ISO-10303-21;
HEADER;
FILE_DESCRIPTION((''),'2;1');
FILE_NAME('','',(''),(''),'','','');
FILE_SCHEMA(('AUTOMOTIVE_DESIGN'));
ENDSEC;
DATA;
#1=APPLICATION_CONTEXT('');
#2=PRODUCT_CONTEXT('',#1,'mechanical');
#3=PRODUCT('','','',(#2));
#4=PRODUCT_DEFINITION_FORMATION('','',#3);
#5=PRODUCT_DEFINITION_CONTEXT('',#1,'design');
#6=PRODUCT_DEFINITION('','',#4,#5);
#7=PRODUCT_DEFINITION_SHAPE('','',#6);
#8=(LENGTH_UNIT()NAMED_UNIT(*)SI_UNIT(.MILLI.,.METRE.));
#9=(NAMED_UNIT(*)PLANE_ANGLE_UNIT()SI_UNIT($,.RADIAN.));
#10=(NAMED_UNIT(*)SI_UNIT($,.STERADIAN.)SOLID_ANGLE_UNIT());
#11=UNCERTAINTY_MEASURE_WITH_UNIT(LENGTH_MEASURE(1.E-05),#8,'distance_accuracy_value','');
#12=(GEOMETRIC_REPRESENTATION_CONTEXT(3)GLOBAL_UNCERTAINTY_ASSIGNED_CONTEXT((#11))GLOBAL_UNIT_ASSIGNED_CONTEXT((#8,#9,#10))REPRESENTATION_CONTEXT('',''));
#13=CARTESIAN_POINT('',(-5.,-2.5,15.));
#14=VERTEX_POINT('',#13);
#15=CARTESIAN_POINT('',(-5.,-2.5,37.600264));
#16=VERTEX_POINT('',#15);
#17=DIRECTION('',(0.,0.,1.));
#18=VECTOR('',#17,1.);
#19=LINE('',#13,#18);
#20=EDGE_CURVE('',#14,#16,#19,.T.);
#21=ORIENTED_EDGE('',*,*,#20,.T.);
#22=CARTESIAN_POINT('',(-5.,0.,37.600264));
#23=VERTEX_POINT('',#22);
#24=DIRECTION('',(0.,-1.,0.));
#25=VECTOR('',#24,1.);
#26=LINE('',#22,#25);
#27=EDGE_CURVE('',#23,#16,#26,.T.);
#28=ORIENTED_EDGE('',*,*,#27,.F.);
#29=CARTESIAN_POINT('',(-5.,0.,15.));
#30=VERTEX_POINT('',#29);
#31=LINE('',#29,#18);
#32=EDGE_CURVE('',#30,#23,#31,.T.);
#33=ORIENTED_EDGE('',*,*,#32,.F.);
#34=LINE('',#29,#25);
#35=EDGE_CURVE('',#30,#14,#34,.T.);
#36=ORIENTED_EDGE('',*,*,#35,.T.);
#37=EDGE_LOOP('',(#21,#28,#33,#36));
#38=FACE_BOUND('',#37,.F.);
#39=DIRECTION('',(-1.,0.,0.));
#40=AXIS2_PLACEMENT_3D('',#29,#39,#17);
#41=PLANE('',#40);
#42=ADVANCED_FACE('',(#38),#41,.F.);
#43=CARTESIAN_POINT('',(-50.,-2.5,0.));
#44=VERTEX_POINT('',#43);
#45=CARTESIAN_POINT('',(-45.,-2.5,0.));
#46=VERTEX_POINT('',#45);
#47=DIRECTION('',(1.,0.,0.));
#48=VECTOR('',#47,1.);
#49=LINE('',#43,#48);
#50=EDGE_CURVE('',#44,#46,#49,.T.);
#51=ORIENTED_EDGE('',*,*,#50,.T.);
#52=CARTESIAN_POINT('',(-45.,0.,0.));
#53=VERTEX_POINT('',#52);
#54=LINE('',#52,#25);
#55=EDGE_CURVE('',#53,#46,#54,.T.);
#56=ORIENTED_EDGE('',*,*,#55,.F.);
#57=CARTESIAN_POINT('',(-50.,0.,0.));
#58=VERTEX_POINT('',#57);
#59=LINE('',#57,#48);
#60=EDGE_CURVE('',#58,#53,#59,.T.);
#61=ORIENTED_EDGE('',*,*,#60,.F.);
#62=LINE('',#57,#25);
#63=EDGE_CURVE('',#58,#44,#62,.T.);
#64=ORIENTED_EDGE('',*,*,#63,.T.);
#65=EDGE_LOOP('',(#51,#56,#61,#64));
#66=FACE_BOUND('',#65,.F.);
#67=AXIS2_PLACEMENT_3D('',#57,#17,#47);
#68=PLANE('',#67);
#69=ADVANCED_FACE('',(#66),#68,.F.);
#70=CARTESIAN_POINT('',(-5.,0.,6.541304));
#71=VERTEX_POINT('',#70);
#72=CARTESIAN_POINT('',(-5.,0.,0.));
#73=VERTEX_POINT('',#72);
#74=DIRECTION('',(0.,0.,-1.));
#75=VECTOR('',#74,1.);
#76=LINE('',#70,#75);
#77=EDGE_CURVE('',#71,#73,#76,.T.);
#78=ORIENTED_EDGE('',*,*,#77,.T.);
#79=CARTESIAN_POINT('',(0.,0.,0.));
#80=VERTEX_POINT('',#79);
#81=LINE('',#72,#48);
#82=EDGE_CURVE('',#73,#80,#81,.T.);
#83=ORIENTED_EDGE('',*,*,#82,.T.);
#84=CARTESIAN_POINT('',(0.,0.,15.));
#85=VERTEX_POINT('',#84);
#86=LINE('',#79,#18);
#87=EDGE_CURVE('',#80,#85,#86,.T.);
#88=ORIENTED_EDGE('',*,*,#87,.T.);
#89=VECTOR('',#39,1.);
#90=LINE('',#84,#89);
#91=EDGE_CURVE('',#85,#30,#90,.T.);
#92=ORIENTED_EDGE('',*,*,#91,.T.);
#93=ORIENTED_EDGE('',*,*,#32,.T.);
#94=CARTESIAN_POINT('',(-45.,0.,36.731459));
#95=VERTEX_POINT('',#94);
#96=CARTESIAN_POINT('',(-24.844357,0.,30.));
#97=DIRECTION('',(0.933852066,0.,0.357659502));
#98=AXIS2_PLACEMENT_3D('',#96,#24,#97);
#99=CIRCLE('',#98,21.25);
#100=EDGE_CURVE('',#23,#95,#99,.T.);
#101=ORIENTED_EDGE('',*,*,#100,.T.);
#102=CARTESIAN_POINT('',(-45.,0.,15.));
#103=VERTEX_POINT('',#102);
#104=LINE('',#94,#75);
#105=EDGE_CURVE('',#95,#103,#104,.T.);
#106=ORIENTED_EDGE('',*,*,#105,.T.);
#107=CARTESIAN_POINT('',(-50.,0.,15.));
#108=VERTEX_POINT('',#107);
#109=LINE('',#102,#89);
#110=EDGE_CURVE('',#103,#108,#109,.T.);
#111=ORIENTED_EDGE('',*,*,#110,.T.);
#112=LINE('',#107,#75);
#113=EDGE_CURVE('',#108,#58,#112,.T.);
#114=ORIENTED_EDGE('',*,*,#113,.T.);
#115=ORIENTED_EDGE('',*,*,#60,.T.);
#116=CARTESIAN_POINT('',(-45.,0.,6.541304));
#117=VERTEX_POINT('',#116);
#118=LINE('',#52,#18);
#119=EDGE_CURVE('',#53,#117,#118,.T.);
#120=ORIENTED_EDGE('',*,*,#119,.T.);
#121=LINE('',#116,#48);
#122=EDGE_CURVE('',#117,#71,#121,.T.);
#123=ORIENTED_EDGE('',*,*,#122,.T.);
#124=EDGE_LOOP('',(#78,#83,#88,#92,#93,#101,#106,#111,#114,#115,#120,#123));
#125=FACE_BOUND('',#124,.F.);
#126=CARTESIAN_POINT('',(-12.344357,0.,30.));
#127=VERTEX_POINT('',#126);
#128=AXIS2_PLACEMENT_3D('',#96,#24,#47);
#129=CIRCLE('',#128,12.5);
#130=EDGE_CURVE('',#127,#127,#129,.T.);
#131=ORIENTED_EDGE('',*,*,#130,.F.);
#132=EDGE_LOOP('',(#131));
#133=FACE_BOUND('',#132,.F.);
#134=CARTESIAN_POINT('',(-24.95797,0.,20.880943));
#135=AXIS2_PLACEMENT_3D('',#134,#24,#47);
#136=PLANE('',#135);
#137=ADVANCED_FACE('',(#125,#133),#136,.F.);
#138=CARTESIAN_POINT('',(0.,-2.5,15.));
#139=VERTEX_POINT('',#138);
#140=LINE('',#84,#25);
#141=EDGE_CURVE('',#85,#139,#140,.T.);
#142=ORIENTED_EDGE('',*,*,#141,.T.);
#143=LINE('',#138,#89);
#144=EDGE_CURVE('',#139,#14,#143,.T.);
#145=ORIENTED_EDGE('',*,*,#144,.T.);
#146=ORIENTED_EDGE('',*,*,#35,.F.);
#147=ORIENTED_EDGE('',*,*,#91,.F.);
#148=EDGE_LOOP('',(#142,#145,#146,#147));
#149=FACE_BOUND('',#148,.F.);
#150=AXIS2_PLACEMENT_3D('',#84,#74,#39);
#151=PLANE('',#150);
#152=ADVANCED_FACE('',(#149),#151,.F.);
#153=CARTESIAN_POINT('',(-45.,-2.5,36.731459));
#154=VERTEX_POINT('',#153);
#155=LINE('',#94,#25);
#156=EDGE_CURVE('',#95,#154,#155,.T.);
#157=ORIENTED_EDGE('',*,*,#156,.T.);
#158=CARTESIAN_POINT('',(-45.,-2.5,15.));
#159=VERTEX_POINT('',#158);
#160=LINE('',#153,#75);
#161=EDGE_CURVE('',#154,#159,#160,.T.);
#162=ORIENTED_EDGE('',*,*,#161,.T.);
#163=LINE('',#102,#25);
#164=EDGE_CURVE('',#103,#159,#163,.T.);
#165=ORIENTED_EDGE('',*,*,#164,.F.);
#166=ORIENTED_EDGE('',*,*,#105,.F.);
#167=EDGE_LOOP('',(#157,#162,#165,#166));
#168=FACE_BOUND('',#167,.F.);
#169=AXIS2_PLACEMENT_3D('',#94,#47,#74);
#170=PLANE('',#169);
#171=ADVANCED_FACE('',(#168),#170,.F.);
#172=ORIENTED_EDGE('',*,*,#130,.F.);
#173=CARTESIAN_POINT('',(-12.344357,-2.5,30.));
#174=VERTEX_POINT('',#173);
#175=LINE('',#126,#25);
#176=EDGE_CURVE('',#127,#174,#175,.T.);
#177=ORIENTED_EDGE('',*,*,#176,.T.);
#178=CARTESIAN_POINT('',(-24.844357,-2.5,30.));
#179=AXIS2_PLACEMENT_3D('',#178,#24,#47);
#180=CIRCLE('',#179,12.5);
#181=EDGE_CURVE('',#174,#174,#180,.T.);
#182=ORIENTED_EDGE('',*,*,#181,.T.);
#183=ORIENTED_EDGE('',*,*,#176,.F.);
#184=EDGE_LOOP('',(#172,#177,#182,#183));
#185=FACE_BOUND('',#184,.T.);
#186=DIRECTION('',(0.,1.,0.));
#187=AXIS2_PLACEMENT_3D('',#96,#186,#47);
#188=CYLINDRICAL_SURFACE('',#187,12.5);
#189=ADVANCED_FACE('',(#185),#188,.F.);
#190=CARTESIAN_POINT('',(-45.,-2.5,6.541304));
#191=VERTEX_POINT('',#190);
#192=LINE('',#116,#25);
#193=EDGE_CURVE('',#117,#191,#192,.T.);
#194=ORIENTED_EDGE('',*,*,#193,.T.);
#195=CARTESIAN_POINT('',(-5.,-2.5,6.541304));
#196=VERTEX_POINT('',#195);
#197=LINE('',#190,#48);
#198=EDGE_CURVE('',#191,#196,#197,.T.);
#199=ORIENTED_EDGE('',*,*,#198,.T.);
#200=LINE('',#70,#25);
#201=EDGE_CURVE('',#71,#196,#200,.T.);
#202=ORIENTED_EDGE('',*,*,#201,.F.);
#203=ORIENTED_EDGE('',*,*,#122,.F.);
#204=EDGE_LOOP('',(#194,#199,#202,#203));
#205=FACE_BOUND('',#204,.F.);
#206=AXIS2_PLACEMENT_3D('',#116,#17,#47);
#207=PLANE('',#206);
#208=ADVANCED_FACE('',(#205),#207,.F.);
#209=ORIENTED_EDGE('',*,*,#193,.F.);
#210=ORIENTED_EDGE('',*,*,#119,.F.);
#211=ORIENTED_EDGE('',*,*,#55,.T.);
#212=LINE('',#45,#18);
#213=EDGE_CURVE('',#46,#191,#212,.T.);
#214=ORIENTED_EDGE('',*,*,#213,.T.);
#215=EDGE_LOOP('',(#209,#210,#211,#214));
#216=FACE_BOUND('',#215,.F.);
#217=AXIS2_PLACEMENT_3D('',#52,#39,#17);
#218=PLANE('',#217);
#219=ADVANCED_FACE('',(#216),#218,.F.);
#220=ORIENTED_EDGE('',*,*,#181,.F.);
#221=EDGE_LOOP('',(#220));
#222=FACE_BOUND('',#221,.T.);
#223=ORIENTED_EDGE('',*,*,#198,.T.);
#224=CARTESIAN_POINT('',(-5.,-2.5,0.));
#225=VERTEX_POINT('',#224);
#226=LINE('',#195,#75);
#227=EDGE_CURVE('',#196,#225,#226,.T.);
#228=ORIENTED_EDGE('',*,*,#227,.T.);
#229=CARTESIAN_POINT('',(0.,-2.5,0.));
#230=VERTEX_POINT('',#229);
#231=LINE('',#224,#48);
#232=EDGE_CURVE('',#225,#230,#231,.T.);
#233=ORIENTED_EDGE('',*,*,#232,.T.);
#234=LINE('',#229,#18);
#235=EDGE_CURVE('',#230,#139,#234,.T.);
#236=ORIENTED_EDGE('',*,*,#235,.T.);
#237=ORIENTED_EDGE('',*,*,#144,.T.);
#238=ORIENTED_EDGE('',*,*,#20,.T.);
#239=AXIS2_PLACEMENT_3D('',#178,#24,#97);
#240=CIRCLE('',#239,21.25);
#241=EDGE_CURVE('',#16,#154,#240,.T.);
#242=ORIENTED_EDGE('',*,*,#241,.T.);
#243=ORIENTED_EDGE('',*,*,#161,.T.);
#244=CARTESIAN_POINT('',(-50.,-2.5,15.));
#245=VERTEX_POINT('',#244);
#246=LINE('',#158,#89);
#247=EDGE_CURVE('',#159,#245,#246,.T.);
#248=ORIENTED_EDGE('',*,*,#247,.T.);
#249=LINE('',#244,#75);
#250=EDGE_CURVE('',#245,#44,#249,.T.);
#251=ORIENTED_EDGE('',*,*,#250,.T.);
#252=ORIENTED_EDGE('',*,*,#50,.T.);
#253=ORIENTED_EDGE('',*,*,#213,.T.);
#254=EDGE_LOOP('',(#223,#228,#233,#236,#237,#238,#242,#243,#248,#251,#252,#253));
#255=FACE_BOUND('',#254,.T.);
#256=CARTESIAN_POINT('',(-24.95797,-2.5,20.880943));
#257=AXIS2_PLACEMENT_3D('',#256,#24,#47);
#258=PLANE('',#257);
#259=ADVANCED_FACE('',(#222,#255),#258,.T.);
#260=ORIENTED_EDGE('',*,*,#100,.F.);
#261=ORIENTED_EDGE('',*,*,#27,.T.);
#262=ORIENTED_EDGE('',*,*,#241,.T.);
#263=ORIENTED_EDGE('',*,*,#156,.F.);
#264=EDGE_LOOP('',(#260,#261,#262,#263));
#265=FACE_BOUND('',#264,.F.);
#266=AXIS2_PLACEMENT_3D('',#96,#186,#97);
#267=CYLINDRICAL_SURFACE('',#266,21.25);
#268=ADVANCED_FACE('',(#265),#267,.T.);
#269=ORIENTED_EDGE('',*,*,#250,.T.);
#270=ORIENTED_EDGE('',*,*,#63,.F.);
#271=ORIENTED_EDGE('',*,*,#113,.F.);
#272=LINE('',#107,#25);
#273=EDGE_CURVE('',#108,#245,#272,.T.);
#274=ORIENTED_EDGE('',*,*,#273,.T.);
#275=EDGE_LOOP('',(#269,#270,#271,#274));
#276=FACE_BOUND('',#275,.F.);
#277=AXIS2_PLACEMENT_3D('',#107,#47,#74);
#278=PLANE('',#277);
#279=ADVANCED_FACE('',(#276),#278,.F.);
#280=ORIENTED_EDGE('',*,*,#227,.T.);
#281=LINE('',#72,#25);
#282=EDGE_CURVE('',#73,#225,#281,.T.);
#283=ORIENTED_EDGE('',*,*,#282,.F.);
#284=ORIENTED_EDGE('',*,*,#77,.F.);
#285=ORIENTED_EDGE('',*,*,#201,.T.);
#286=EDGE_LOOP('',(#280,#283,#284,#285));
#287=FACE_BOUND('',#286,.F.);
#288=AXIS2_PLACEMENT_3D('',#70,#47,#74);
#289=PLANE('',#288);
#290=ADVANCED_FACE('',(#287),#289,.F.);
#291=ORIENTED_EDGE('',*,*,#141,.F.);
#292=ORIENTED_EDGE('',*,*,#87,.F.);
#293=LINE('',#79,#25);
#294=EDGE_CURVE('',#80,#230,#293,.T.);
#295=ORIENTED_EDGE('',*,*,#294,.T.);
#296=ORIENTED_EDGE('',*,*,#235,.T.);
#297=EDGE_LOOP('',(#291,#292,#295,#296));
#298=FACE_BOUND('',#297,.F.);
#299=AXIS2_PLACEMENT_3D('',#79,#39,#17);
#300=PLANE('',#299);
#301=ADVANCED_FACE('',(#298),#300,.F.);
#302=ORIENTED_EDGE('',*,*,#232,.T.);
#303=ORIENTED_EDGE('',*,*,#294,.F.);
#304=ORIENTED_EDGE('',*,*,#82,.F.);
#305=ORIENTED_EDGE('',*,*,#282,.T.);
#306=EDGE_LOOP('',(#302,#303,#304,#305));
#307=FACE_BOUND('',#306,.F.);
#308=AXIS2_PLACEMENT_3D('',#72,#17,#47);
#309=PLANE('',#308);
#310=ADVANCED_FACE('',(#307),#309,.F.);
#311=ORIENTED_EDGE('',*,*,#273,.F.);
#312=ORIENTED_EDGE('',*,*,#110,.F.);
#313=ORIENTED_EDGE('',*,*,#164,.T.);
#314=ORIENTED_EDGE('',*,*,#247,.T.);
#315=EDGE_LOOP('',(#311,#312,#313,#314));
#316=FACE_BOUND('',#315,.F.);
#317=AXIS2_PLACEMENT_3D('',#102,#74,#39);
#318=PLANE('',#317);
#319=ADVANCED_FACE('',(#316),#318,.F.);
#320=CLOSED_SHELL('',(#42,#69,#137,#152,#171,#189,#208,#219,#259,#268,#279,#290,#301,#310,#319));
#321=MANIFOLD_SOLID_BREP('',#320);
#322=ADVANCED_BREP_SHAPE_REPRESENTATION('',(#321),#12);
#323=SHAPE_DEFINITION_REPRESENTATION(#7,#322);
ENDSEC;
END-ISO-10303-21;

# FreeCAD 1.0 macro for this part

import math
import FreeCAD as App
import Part
import Sketcher
from FreeCAD import Vector

doc = App.newDocument("Part")
body = doc.addObject("PartDesign::Body", "Body")

sketch1 = body.newObject("Sketcher::SketchObject", "Sketch")
sketch1.AttachmentSupport = (doc.getObject("XZ_Plane"), [""])
sketch1.MapMode = "FlatFace"
sketch1.addGeometry([
    Part.LineSegment(Vector(-5, 0, 0), Vector(0, 0, 0)),
    Part.LineSegment(Vector(0, 0, 0), Vector(0, 15, 0)),
    Part.LineSegment(Vector(0, 15, 0), Vector(-5, 15, 0)),
    Part.LineSegment(Vector(-5, 15, 0), Vector(-5, 38, 0)),
    Part.ArcOfCircle(Part.Circle(Vector(-25, 30, 0), Vector(0, 0, 1), 21), math.radians(21), math.radians(162)),
    Part.LineSegment(Vector(-45, 37, 0), Vector(-45, 15, 0)),
    Part.LineSegment(Vector(-45, 15, 0), Vector(-50, 15, 0)),
    Part.LineSegment(Vector(-50, 15, 0), Vector(-50, 0, 0)),
    Part.LineSegment(Vector(-50, 0, 0), Vector(-45, 0, 0)),
    Part.LineSegment(Vector(-45, 0, 0), Vector(-45, 7, 0)),
    Part.LineSegment(Vector(-45, 7, 0), Vector(-5, 7, 0)),
    Part.LineSegment(Vector(-5, 7, 0), Vector(-5, 0, 0)),
    Part.Circle(Vector(-25, 30, 0), Vector(0, 0, 1), 12),
], False)
sketch1.addConstraint([
    Sketcher.Constraint("Coincident", 0, 2, 1, 1),
    Sketcher.Constraint("Coincident", 1, 2, 2, 1),
    Sketcher.Constraint("Coincident", 2, 2, 3, 1),
    Sketcher.Constraint("Coincident", 3, 2, 4, 1),
    Sketcher.Constraint("Coincident", 4, 2, 5, 1),
    Sketcher.Constraint("Coincident", 5, 2, 6, 1),
    Sketcher.Constraint("Coincident", 6, 2, 7, 1),
    Sketcher.Constraint("Coincident", 7, 2, 8, 1),
    Sketcher.Constraint("Coincident", 8, 2, 9, 1),
    Sketcher.Constraint("Coincident", 9, 2, 10, 1),
    Sketcher.Constraint("Coincident", 10, 2, 11, 1),
    Sketcher.Constraint("Coincident", 11, 2, 0, 1),
    Sketcher.Constraint("Horizontal", 0),
    Sketcher.Constraint("Vertical", 1),
    Sketcher.Constraint("Horizontal", 2),
    Sketcher.Constraint("Vertical", 3),
    Sketcher.Constraint("Vertical", 5),
    Sketcher.Constraint("Horizontal", 6),
    Sketcher.Constraint("Vertical", 7),
    Sketcher.Constraint("Horizontal", 8),
    Sketcher.Constraint("Vertical", 9),
    Sketcher.Constraint("Horizontal", 10),
    Sketcher.Constraint("Vertical", 11),
    Sketcher.Constraint("Coincident", 0, 2, -1, 1),
    Sketcher.Constraint("Coincident", 12, 3, 4, 3),
    Sketcher.Constraint("PointOnObject", 7, 2, -1),
    Sketcher.Constraint("Horizontal", 2, 2, 5, 2),
    Sketcher.Constraint("Vertical", 5, 2, 8, 2),
    Sketcher.Constraint("Vertical", 3, 2, 10, 2),
    Sketcher.Constraint("Equal", 2, 6),
    Sketcher.Constraint("Diameter", 12, 25.0),
    Sketcher.Constraint("DistanceX", 0, 1, 0, 2, 5.0),
    Sketcher.Constraint("DistanceX", 10, 1, 10, 2, 40.0),
    Sketcher.Constraint("DistanceY", 1, 1, 1, 2, 15.0),
    Sketcher.Constraint("Radius", 4, 21.25),
    Sketcher.Constraint("DistanceY", -1, 1, 4, 3, 30.0),
    Sketcher.Constraint("DistanceY", 5, 2, 5, 1, 21.731459),
    Sketcher.Constraint("DistanceY", 9, 1, 9, 2, 6.541304),
])
pad1 = body.newObject("PartDesign::Pad", "Pad")
pad1.Profile = sketch1
pad1.Length = 2.5

doc.recompute()
